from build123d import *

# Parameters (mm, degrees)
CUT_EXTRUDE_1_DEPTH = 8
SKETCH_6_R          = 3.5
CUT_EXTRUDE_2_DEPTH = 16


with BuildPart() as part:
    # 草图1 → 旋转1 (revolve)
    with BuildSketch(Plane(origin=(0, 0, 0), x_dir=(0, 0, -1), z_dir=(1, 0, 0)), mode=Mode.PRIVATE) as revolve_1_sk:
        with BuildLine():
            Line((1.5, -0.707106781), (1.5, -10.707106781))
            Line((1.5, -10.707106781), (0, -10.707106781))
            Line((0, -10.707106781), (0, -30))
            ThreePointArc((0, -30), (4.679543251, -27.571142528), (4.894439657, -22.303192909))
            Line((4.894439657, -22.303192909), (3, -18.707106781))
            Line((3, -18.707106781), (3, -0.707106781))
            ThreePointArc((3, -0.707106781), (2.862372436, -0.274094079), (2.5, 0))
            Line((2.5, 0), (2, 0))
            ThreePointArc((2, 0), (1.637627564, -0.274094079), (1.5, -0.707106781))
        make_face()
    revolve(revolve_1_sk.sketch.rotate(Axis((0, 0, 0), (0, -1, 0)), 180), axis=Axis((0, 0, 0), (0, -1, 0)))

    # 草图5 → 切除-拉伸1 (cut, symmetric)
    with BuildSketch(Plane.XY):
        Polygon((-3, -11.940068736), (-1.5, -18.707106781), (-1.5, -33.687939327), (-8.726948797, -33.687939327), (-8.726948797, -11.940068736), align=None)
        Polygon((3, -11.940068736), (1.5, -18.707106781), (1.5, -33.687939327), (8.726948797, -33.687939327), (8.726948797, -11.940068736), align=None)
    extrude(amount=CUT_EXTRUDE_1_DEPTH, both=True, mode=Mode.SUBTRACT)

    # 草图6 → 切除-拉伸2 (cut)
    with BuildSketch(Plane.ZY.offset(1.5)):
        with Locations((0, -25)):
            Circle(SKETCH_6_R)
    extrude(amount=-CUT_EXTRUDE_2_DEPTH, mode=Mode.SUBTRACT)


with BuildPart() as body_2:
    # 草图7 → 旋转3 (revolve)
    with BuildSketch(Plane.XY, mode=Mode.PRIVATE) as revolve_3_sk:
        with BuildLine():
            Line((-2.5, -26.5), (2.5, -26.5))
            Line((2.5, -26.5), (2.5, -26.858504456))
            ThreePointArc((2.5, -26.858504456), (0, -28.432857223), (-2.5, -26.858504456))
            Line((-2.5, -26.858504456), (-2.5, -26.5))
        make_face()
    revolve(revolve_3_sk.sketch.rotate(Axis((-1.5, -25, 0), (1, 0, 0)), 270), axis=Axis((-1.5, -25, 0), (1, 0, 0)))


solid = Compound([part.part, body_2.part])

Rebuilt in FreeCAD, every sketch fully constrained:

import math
import FreeCAD as App
import Part
import Sketcher
from FreeCAD import Vector
Q = App.Units.Quantity


def add_polygon(sketch, points):
    """Adds a closed chain of lines whose ends are joined by coincident constraints."""
    first, n = sketch.GeometryCount, len(points)
    for a, b in zip(points, points[1:] + points[:1]):
        sketch.addGeometry(Part.LineSegment(App.Vector(*a, 0), App.Vector(*b, 0)), False)
    for i in range(n):
        sketch.addConstraint(Sketcher.Constraint("Coincident", first + i, 2, first + (i + 1) % n, 1))

doc = App.newDocument("Part")
body = doc.addObject("PartDesign::Body", "Body")

# Sketch on YZ plane
sketch1 = body.newObject("Sketcher::SketchObject", "Sketch")
sketch1.AttachmentSupport = (doc.getObject("YZ_Plane"), [""])
sketch1.MapMode = "FlatFace"
sketch1.addGeometry(Part.LineSegment(Vector(-0.7, -1.5, 0), Vector(-10.7, -1.5, 0)), False)
sketch1.addGeometry(Part.LineSegment(Vector(-10.7, -1.5, 0), Vector(-10.7, 0, 0)), False)
sketch1.addGeometry(Part.LineSegment(Vector(-10.7, 0, 0), Vector(-30, 0, 0)), False)
sketch1.addGeometry(Part.ArcOfCircle(Part.Circle(Vector(-24.8, -0.2, 0), Vector(0, 0, 1), 5.3), math.radians(177), math.radians(298)), False)
sketch1.addGeometry(Part.LineSegment(Vector(-22.3, -4.9, 0), Vector(-18.7, -3, 0)), False)
sketch1.addGeometry(Part.LineSegment(Vector(-18.7, -3, 0), Vector(-0.7, -3, 0)), False)
sketch1.addGeometry(Part.ArcOfCircle(Part.Circle(Vector(-0.7, -2.3, 0), Vector(0, 0, 1), 0.7), math.radians(-90), math.radians(-19)), False)
sketch1.addGeometry(Part.LineSegment(Vector(0, -2.5, 0), Vector(0, -2, 0)), False)
sketch1.addGeometry(Part.ArcOfCircle(Part.Circle(Vector(-0.7, -2.2, 0), Vector(0, 0, 1), 0.7), math.radians(19), math.radians(90)), False)
sketch1.addConstraint(Sketcher.Constraint("Coincident", 0, 2, 1, 1))
sketch1.addConstraint(Sketcher.Constraint("Coincident", 1, 2, 2, 1))
sketch1.addConstraint(Sketcher.Constraint("Coincident", 2, 2, 3, 1))
sketch1.addConstraint(Sketcher.Constraint("Tangent", 3, 2, 4, 1))
sketch1.addConstraint(Sketcher.Constraint("Coincident", 4, 2, 5, 1))
sketch1.addConstraint(Sketcher.Constraint("Tangent", 5, 2, 6, 1))
sketch1.addConstraint(Sketcher.Constraint("Coincident", 6, 2, 7, 1))
sketch1.addConstraint(Sketcher.Constraint("Coincident", 7, 2, 8, 1))
sketch1.addConstraint(Sketcher.Constraint("Tangent", 8, 2, 0, 1))
sketch1.addConstraint(Sketcher.Constraint("Horizontal", 0))
sketch1.addConstraint(Sketcher.Constraint("Vertical", 1))
sketch1.addConstraint(Sketcher.Constraint("Horizontal", 2))
sketch1.addConstraint(Sketcher.Constraint("Horizontal", 5))
sketch1.addConstraint(Sketcher.Constraint("Vertical", 7))
sketch1.addConstraint(Sketcher.Constraint("Coincident", 8, 3, 6, 3))
sketch1.addConstraint(Sketcher.Constraint("Equal", 6, 8))
sketch1.addConstraint(Sketcher.Constraint("PointOnObject", 1, 2, -1))
sketch1.addConstraint(Sketcher.Constraint("PointOnObject", 6, 2, -2))
sketch1.addConstraint(Sketcher.Constraint("DistanceX", 0, 2, 0, 1, Q("10 mm")))
sketch1.addConstraint(Sketcher.Constraint("DistanceX", 5, 1, 5, 2, Q("18 mm")))
sketch1.addConstraint(Sketcher.Constraint("Radius", 6, Q("0.75 mm")))
sketch1.addConstraint(Sketcher.Constraint("DistanceY", 1, 1, 1, 2, Q("1.5 mm")))
sketch1.addConstraint(Sketcher.Constraint("DistanceY", 7, 1, 7, 2, Q("0.5 mm")))
sketch1.addConstraint(Sketcher.Constraint("DistanceX", 2, 2, -1, 1, Q("30 mm")))
sketch1.addConstraint(Sketcher.Constraint("Radius", 3, Q("5.253837 mm")))
sketch1.addConstraint(Sketcher.Constraint("Distance", 4, Q("4.064571 mm")))
revolution = body.newObject("PartDesign::Revolution", "Revolution")
revolution.Profile = sketch1
revolution.ReferenceAxis = (sketch1, ["H_Axis"])
revolution.Angle = 360

# Sketch on XY plane
sketch2 = body.newObject("Sketcher::SketchObject", "Sketch001")
sketch2.AttachmentSupport = (doc.getObject("XY_Plane"), [""])
sketch2.MapMode = "FlatFace"
add_polygon(sketch2, [(-2, -19), (-3, -12), (-9, -12), (-9, -34), (-2, -34)])  # lines 0-4
add_polygon(sketch2, [(3, -12), (2, -19), (2, -34), (9, -34), (9, -12)])  # lines 5-9
sketch2.addConstraint(Sketcher.Constraint("Horizontal", 1))
sketch2.addConstraint(Sketcher.Constraint("Vertical", 2))
sketch2.addConstraint(Sketcher.Constraint("Horizontal", 3))
sketch2.addConstraint(Sketcher.Constraint("Vertical", 4))
sketch2.addConstraint(Sketcher.Constraint("Vertical", 6))
sketch2.addConstraint(Sketcher.Constraint("Horizontal", 7))
sketch2.addConstraint(Sketcher.Constraint("Vertical", 8))
sketch2.addConstraint(Sketcher.Constraint("Horizontal", 9))
sketch2.addConstraint(Sketcher.Constraint("Symmetric", 4, 2, 5, 2, -2))
sketch2.addConstraint(Sketcher.Constraint("Symmetric", 2, 2, 7, 2, -2))
sketch2.addConstraint(Sketcher.Constraint("Symmetric", 0, 2, 9, 2, -2))
sketch2.addConstraint(Sketcher.Constraint("DistanceX", 0, 2, -1, 1, Q("3 mm")))
sketch2.addConstraint(Sketcher.Constraint("DistanceX", 4, 2, 5, 2, Q("3 mm")))
sketch2.addConstraint(Sketcher.Constraint("DistanceX", 1, 2, 1, 1, Q("5.726949 mm")))
sketch2.addConstraint(Sketcher.Constraint("DistanceY", 2, 2, 2, 1, Q("21.747871 mm")))
sketch2.addConstraint(Sketcher.Constraint("Distance", 0, Q("6.931292 mm")))
sketch2.addConstraint(Sketcher.Constraint("DistanceY", 0, 2, -1, 1, Q("11.940069 mm")))
pocket1 = body.newObject("PartDesign::Pocket", "Pocket")
pocket1.Profile = sketch2
pocket1.Length = 16
pocket1.Midplane = True

# Sketch on YZ plane
sketch3 = body.newObject("Sketcher::SketchObject", "Sketch002")
sketch3.AttachmentSupport = (doc.getObject("YZ_Plane"), [""])
sketch3.MapMode = "FlatFace"
sketch3.AttachmentOffset = App.Placement(Vector(0, 0, -1.5), App.Rotation())
sketch3.addGeometry(Part.Circle(Vector(-25, 0, 0), Vector(0, 0, 1), 3.5), False)
sketch3.addConstraint(Sketcher.Constraint("PointOnObject", 0, 3, -1))
sketch3.addConstraint(Sketcher.Constraint("Diameter", 0, Q("7 mm")))
sketch3.addConstraint(Sketcher.Constraint("DistanceX", 0, 3, -1, 1, Q("25 mm")))
pocket2 = body.newObject("PartDesign::Pocket", "Pocket001")
pocket2.Profile = sketch3
pocket2.Length = 16
pocket2.Reversed = True
body2 = doc.addObject("PartDesign::Body", "Body001")

# Sketch on XY plane
sketch4 = body2.newObject("Sketcher::SketchObject", "Sketch003")
sketch4.AttachmentSupport = (doc.getObject("XY_Plane001"), [""])
sketch4.MapMode = "FlatFace"
sketch4.addGeometry(Part.LineSegment(Vector(2.5, -26.5, 0), Vector(-2.5, -26.5, 0)), False)
sketch4.addGeometry(Part.LineSegment(Vector(-2.5, -26.5, 0), Vector(-2.5, -26.86, 0)), False)
sketch4.addGeometry(Part.ArcOfCircle(Part.Circle(Vector(0, -25.66, 0), Vector(0, 0, 1), 2.77), math.radians(-154), math.radians(-26)), False)
sketch4.addGeometry(Part.LineSegment(Vector(2.5, -26.86, 0), Vector(2.5, -26.5, 0)), False)
sketch4.addGeometry(Part.LineSegment(Vector(-2.5, -25, 0), Vector(2.5, -25, 0)), True)  # axis
sketch4.addConstraint(Sketcher.Constraint("Coincident", 0, 2, 1, 1))
sketch4.addConstraint(Sketcher.Constraint("Coincident", 1, 2, 2, 1))
sketch4.addConstraint(Sketcher.Constraint("Coincident", 2, 2, 3, 1))
sketch4.addConstraint(Sketcher.Constraint("Coincident", 3, 2, 0, 1))
sketch4.addConstraint(Sketcher.Constraint("Horizontal", 0))
sketch4.addConstraint(Sketcher.Constraint("Vertical", 1))
sketch4.addConstraint(Sketcher.Constraint("Vertical", 3))
sketch4.addConstraint(Sketcher.Constraint("Horizontal", 4))
sketch4.addConstraint(Sketcher.Constraint("Symmetric", 1, 2, 2, 2, -2))
sketch4.addConstraint(Sketcher.Constraint("Vertical", 1, 2, 4, 1))
sketch4.addConstraint(Sketcher.Constraint("Vertical", 3, 2, 4, 2))
sketch4.addConstraint(Sketcher.Constraint("DistanceX", 0, 2, 0, 1, Q("5 mm")))
sketch4.addConstraint(Sketcher.Constraint("DistanceY", 4, 1, -1, 1, Q("25 mm")))
sketch4.addConstraint(Sketcher.Constraint("DistanceY", 0, 2, -1, 1, Q("26.5 mm")))
sketch4.addConstraint(Sketcher.Constraint("Radius", 2, Q("2.772119 mm")))
sketch4.addConstraint(Sketcher.Constraint("DistanceY", 1, 2, 1, 1, Q("0.358504 mm")))
revolution2 = body2.newObject("PartDesign::Revolution", "Revolution001")
revolution2.Profile = sketch4
revolution2.ReferenceAxis = (sketch4, ["Axis0"])
revolution2.Angle = 360

doc.recompute()
